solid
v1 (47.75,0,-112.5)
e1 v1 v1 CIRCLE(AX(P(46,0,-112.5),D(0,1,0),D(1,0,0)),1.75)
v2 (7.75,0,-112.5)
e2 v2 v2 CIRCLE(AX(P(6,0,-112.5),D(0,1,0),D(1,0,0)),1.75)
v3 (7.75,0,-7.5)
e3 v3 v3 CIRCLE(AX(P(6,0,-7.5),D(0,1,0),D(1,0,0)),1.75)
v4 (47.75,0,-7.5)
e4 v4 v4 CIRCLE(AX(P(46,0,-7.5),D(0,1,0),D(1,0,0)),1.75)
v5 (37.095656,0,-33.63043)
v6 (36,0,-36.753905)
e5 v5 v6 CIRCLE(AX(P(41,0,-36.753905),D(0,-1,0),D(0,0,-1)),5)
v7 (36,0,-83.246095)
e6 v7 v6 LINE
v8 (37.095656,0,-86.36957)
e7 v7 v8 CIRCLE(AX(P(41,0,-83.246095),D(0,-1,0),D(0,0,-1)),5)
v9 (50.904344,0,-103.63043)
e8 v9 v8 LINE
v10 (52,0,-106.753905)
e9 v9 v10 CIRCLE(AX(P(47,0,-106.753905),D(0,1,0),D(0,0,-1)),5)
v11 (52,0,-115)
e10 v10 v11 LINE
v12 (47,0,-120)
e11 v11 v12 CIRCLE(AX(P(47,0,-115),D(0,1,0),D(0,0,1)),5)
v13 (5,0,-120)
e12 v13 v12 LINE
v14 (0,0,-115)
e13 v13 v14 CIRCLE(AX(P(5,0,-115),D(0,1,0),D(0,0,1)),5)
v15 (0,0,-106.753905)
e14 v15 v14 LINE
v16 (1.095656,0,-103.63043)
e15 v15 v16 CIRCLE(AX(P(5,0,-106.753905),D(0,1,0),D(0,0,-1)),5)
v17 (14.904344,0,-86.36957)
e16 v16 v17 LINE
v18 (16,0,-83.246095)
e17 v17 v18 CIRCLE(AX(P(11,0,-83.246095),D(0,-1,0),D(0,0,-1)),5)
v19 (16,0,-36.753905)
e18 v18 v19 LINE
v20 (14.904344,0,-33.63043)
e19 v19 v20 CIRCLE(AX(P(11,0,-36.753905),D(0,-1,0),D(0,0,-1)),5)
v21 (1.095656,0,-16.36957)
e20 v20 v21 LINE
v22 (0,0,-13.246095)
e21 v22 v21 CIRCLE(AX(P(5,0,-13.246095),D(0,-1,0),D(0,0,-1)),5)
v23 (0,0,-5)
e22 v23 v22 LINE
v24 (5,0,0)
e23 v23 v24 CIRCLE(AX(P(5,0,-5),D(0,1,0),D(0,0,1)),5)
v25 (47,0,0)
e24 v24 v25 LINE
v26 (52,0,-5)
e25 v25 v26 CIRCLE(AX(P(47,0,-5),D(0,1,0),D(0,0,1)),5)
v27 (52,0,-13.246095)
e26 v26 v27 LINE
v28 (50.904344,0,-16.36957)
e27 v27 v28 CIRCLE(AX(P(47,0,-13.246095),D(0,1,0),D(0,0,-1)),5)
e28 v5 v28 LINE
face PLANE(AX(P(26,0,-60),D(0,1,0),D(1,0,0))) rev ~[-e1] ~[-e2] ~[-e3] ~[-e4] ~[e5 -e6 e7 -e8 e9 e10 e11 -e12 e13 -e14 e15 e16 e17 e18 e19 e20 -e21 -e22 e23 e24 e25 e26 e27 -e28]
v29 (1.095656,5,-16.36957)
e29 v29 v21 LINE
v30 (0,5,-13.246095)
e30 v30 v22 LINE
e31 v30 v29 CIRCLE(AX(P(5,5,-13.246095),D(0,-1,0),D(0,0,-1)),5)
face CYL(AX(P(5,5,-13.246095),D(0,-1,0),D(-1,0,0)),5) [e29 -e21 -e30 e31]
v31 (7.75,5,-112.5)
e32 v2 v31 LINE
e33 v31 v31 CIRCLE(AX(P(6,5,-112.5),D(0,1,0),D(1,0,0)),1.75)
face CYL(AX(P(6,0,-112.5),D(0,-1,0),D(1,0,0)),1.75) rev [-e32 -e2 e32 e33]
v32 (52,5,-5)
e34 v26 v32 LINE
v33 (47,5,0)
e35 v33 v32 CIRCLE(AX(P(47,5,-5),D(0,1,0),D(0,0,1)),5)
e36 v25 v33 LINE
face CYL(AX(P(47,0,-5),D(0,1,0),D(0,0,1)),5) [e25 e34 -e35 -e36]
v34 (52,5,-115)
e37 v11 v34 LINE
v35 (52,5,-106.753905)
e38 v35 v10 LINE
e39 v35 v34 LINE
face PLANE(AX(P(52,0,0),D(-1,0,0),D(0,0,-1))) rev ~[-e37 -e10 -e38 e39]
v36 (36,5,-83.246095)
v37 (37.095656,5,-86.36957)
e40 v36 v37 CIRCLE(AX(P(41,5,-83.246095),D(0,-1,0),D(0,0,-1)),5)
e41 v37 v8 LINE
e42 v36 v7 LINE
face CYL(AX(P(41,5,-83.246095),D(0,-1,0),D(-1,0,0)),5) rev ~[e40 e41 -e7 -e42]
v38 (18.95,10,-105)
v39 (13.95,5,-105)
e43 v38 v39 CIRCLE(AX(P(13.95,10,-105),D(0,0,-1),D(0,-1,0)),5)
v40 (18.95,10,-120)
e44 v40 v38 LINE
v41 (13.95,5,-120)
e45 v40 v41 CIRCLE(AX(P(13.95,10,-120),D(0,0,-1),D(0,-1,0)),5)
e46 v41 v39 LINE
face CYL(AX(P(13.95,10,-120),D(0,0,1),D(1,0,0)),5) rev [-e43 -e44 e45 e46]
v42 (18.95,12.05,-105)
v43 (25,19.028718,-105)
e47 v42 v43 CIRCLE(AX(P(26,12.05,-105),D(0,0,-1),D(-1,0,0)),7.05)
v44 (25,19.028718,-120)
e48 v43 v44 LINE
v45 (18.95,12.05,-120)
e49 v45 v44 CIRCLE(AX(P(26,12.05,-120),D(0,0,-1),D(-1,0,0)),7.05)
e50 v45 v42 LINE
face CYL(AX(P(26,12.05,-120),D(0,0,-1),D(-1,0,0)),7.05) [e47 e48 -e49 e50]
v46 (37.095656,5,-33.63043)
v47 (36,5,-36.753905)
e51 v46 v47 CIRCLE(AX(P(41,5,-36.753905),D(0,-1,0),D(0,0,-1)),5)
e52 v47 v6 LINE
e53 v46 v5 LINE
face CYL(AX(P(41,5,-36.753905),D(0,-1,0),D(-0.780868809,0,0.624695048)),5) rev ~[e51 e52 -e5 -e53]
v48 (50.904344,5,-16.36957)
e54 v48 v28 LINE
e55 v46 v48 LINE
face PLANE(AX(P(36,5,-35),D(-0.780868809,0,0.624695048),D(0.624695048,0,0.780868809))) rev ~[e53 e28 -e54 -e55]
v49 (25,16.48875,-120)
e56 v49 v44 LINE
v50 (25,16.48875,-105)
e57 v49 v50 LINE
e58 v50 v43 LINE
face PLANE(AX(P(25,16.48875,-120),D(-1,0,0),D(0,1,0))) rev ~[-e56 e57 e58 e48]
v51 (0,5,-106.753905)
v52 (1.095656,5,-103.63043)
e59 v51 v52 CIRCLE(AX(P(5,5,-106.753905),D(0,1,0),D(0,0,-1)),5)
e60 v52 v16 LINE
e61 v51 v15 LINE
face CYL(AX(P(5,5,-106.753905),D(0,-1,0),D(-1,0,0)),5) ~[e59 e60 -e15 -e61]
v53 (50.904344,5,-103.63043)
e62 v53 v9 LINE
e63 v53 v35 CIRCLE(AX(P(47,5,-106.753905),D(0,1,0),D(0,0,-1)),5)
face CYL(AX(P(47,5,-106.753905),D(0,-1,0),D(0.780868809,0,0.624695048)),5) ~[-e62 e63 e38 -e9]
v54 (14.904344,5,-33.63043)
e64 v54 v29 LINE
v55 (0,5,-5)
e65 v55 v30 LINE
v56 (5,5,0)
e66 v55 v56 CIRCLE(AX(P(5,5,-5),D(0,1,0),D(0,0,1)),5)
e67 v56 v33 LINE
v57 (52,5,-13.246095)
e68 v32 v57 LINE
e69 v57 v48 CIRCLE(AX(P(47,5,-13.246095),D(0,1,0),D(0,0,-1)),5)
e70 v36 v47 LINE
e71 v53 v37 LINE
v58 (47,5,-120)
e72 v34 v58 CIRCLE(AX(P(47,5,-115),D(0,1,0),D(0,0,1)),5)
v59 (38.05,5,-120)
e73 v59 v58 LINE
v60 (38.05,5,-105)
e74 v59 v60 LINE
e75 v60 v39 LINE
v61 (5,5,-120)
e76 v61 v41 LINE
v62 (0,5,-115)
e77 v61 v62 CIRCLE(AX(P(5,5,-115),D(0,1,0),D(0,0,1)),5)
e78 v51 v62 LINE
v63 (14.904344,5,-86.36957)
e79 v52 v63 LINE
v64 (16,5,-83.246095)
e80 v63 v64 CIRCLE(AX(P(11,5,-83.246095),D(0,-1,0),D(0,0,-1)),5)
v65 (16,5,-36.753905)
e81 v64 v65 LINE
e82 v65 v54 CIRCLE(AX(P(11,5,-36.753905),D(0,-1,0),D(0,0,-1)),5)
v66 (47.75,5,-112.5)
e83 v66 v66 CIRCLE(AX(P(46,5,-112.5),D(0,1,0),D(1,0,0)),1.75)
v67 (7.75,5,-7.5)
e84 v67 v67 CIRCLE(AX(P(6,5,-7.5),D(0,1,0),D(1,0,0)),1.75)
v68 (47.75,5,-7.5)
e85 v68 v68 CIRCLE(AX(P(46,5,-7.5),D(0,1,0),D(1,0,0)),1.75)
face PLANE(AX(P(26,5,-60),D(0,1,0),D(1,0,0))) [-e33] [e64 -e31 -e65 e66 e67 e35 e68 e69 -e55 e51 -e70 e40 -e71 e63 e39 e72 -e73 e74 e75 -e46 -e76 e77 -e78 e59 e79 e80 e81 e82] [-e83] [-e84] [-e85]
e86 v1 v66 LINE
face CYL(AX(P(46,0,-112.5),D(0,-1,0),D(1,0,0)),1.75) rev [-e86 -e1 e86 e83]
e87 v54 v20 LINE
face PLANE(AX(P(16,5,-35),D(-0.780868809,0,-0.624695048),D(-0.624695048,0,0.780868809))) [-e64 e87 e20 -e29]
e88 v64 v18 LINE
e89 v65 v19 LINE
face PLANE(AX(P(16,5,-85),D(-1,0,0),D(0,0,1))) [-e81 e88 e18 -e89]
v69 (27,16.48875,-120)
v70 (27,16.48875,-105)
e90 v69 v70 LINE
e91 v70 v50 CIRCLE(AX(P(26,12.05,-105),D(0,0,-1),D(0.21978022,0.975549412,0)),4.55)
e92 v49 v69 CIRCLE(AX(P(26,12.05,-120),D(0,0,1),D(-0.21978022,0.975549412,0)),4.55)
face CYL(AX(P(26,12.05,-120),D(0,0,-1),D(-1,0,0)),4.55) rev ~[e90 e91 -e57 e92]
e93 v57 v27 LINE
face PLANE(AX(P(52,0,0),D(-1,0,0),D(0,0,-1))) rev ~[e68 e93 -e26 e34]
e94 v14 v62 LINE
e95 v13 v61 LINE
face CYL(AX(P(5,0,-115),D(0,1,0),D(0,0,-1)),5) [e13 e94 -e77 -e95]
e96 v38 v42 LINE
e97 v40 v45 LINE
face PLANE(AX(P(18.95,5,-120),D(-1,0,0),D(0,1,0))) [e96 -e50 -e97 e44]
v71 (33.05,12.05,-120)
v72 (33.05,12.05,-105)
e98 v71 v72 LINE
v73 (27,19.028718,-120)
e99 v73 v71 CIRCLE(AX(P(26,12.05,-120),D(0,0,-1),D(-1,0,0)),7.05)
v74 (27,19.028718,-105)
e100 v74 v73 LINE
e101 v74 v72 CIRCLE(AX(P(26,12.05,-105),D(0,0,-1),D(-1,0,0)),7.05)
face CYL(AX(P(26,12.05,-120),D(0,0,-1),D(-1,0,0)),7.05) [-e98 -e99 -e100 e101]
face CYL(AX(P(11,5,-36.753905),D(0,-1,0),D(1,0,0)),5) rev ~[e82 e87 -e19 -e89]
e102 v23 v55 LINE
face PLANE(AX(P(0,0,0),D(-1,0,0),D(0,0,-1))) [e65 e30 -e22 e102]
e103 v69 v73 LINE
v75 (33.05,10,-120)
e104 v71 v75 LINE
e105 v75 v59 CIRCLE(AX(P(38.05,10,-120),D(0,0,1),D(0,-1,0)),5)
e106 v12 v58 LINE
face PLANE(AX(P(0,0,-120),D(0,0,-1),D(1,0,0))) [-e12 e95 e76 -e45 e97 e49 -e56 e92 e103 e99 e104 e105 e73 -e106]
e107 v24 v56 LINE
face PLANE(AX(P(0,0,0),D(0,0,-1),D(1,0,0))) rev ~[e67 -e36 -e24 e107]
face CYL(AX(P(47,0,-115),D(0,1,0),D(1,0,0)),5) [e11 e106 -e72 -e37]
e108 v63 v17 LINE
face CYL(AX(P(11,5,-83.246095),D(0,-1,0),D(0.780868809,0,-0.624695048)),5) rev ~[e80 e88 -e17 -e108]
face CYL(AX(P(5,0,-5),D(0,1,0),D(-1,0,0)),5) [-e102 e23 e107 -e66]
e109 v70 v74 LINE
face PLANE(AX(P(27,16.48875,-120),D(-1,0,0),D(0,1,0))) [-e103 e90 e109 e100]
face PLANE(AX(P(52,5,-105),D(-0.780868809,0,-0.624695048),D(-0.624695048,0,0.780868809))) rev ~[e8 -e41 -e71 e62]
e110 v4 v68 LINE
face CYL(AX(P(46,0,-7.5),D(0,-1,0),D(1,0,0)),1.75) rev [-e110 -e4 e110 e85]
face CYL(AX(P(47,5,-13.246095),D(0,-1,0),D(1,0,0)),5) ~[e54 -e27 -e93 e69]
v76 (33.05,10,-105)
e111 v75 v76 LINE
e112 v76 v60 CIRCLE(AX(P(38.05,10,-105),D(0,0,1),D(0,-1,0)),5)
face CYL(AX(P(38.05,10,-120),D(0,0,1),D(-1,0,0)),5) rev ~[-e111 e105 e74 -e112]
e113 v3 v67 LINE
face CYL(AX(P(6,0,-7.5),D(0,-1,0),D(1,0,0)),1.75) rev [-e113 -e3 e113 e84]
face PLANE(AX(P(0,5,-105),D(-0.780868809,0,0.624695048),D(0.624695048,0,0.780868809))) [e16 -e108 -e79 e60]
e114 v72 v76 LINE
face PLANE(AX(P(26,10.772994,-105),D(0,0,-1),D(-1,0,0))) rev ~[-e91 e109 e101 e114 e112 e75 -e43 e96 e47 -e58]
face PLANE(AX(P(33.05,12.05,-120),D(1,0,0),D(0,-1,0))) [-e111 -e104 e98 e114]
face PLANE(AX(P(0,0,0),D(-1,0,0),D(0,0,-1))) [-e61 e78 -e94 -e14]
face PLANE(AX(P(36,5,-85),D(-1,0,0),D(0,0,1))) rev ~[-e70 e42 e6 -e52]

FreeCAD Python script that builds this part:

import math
import FreeCAD as App
import Part
import Sketcher
from FreeCAD import Vector
Q = App.Units.Quantity


def edges_at(feature, points):
    """Names of the edges that pass closest to the given points."""
    edges = feature.Shape.Edges
    near = lambda p: min(range(len(edges)), key=lambda i: edges[i].distToShape(Part.Vertex(*p))[0])
    return sorted({f"Edge{near(p) + 1}" for p in points})


def add_polygon(sketch, points):
    """Adds a closed chain of lines whose ends are joined by coincident constraints."""
    first, n = sketch.GeometryCount, len(points)
    for a, b in zip(points, points[1:] + points[:1]):
        sketch.addGeometry(Part.LineSegment(App.Vector(*a, 0), App.Vector(*b, 0)), False)
    for i in range(n):
        sketch.addConstraint(Sketcher.Constraint("Coincident", first + i, 2, first + (i + 1) % n, 1))

doc = App.newDocument("Part")
params = doc.addObject("Spreadsheet::Sheet", "Params")
for row, (alias, value) in enumerate([
    ("sketch1_diameter", "3.5 mm"),
    ("sketch1_width", "52 mm"),
    ("sketch1_height", "120 mm"),
    ("pad1_length", "5 mm"),
    ("sketch2_height", "90 mm"),
    ("sketch2_height2", "50 mm"),
    ("sketch3_diameter", "9.1 mm"),
    ("sketch3_radius", "7.05 mm"),
    ("sketch3_height", "7.05 mm"),
    ("pad2_length", "15 mm"),
    ("sketch4_width", "2 mm"),
    ("fillet_radius", "5 mm"),
], start=1):
    params.set(f"A{row}", alias)
    params.set(f"B{row}", "=" + value)
    params.setAlias(f"B{row}", alias)

body = doc.addObject("PartDesign::Body", "Body")

# Sketch on XZ plane
sketch1 = body.newObject("Sketcher::SketchObject", "Sketch")
sketch1.AttachmentSupport = (doc.getObject("XZ_Plane"), [""])
sketch1.MapMode = "FlatFace"
add_polygon(sketch1, [(0, -120), (0, 0), (52, 0), (52, -120)])  # lines 0-3
sketch1.addGeometry(Part.Circle(Vector(6, -7.5, 0), Vector(0, 0, 1), 1.8), False)  # 4
sketch1.addGeometry(Part.Circle(Vector(46, -7.5, 0), Vector(0, 0, 1), 1.8), False)  # 5
sketch1.addGeometry(Part.Circle(Vector(6, -112.5, 0), Vector(0, 0, 1), 1.8), False)  # 6
sketch1.addGeometry(Part.Circle(Vector(46, -112.5, 0), Vector(0, 0, 1), 1.8), False)  # 7
sketch1.addConstraint(Sketcher.Constraint("Vertical", 0))
sketch1.addConstraint(Sketcher.Constraint("Horizontal", 1))
sketch1.addConstraint(Sketcher.Constraint("Vertical", 2))
sketch1.addConstraint(Sketcher.Constraint("Horizontal", 3))
sketch1.addConstraint(Sketcher.Constraint("Coincident", 0, 2, -1, 1))
sketch1.addConstraint(Sketcher.Constraint("Equal", 4, 5))
sketch1.addConstraint(Sketcher.Constraint("Equal", 5, 6))
sketch1.addConstraint(Sketcher.Constraint("Equal", 6, 7))
sketch1.addConstraint(Sketcher.Constraint("Horizontal", 4, 3, 5, 3))
sketch1.addConstraint(Sketcher.Constraint("Horizontal", 6, 3, 7, 3))
sketch1.addConstraint(Sketcher.Constraint("Vertical", 4, 3, 6, 3))
sketch1.addConstraint(Sketcher.Constraint("Vertical", 5, 3, 7, 3))
sketch1.addConstraint(Sketcher.Constraint("Diameter", 4, Q("3.5 mm")))
sketch1.addConstraint(Sketcher.Constraint("DistanceX", 1, 1, 1, 2, Q("52 mm")))
sketch1.addConstraint(Sketcher.Constraint("DistanceY", 0, 1, 0, 2, Q("120 mm")))
sketch1.addConstraint(Sketcher.Constraint("DistanceX", -1, 1, 4, 3, Q("6 mm")))
sketch1.addConstraint(Sketcher.Constraint("DistanceX", -1, 1, 5, 3, Q("46 mm")))
sketch1.addConstraint(Sketcher.Constraint("DistanceY", 6, 3, 4, 3, Q("105 mm")))
sketch1.addConstraint(Sketcher.Constraint("DistanceY", 4, 3, -1, 1, Q("7.5 mm")))
sketch1.setExpression("Constraints[16]", "Params.sketch1_diameter")
sketch1.setExpression("Constraints[17]", "Params.sketch1_width")
sketch1.setExpression("Constraints[18]", "Params.sketch1_height")
pad1 = body.newObject("PartDesign::Pad", "Pad")
pad1.Profile = sketch1
pad1.setExpression("Length", "Params.pad1_length")
pad1.Reversed = True

# Sketch on XZ plane
sketch2 = body.newObject("Sketcher::SketchObject", "Sketch001")
sketch2.AttachmentSupport = (doc.getObject("XZ_Plane"), [""])
sketch2.MapMode = "FlatFace"
sketch2.AttachmentOffset = App.Placement(Vector(0, 0, -5), App.Rotation())
add_polygon(sketch2, [(16, -85), (0, -105), (0, -15), (16, -35)])  # lines 0-3
add_polygon(sketch2, [(52, -105), (36, -85), (36, -35), (52, -15)])  # lines 4-7
sketch2.addConstraint(Sketcher.Constraint("Vertical", 1))
sketch2.addConstraint(Sketcher.Constraint("Vertical", 3))
sketch2.addConstraint(Sketcher.Constraint("Vertical", 5))
sketch2.addConstraint(Sketcher.Constraint("Vertical", 7))
sketch2.addConstraint(Sketcher.Constraint("PointOnObject", 0, 2, -2))
sketch2.addConstraint(Sketcher.Constraint("Parallel", 2, 4))
sketch2.addConstraint(Sketcher.Constraint("Parallel", 0, 6))
sketch2.addConstraint(Sketcher.Constraint("Horizontal", 3, 2, 4, 2))
sketch2.addConstraint(Sketcher.Constraint("Horizontal", 2, 2, 5, 2))
sketch2.addConstraint(Sketcher.Constraint("Horizontal", 1, 2, 6, 2))
sketch2.addConstraint(Sketcher.Constraint("Horizontal", 0, 2, 7, 2))
sketch2.addConstraint(Sketcher.Constraint("DistanceY", 1, 1, 1, 2, Q("90 mm")))
sketch2.addConstraint(Sketcher.Constraint("DistanceY", 3, 2, 3, 1, Q("50 mm")))
sketch2.addConstraint(Sketcher.Constraint("DistanceY", 0, 2, -1, 1, Q("105 mm")))
sketch2.addConstraint(Sketcher.Constraint("DistanceX", -1, 1, 2, 2, Q("16 mm")))
sketch2.addConstraint(Sketcher.Constraint("DistanceX", -1, 1, 4, 2, Q("36 mm")))
sketch2.setExpression("Constraints[19]", "Params.sketch2_height")
sketch2.setExpression("Constraints[20]", "Params.sketch2_height2")
pocket1 = body.newObject("PartDesign::Pocket", "Pocket")
pocket1.Profile = sketch2
pocket1.Type = "ThroughAll"
pocket1.Reversed = True

# Sketch on XY plane
sketch3 = body.newObject("Sketcher::SketchObject", "Sketch002")
sketch3.AttachmentSupport = (doc.getObject("XY_Plane"), [""])
sketch3.MapMode = "FlatFace"
sketch3.AttachmentOffset = App.Placement(Vector(0, 0, -120), App.Rotation())
sketch3.addGeometry(Part.LineSegment(Vector(33, 12.1, 0), Vector(33, 5, 0)), False)
sketch3.addGeometry(Part.LineSegment(Vector(33, 5, 0), Vector(18.9, 5, 0)), False)
sketch3.addGeometry(Part.LineSegment(Vector(18.9, 5, 0), Vector(18.9, 12.1, 0)), False)
sketch3.addGeometry(Part.ArcOfCircle(Part.Circle(Vector(26, 12.1, 0), Vector(0, 0, 1), 7), math.radians(0), math.radians(180)), False)
sketch3.addGeometry(Part.Circle(Vector(26, 12.1, 0), Vector(0, 0, 1), 4.5), False)
sketch3.addConstraint(Sketcher.Constraint("Coincident", 0, 2, 1, 1))
sketch3.addConstraint(Sketcher.Constraint("Coincident", 1, 2, 2, 1))
sketch3.addConstraint(Sketcher.Constraint("Tangent", 2, 2, 3, 2))
sketch3.addConstraint(Sketcher.Constraint("Tangent", 3, 1, 0, 1))
sketch3.addConstraint(Sketcher.Constraint("Vertical", 0))
sketch3.addConstraint(Sketcher.Constraint("Horizontal", 1))
sketch3.addConstraint(Sketcher.Constraint("Vertical", 2))
sketch3.addConstraint(Sketcher.Constraint("Coincident", 4, 3, 3, 3))
sketch3.addConstraint(Sketcher.Constraint("Diameter", 4, Q("9.1 mm")))
sketch3.addConstraint(Sketcher.Constraint("Radius", 3, Q("7.05 mm")))
sketch3.addConstraint(Sketcher.Constraint("DistanceX", -1, 1, 3, 3, Q("26 mm")))
sketch3.addConstraint(Sketcher.Constraint("DistanceY", -1, 1, 0, 2, Q("5 mm")))
sketch3.addConstraint(Sketcher.Constraint("DistanceY", 0, 2, 0, 1, Q("7.05 mm")))
sketch3.setExpression("Constraints[8]", "Params.sketch3_diameter")
sketch3.setExpression("Constraints[9]", "Params.sketch3_radius")
sketch3.setExpression("Constraints[12]", "Params.sketch3_height")
pad2 = body.newObject("PartDesign::Pad", "Pad001")
pad2.Profile = sketch3
pad2.setExpression("Length", "Params.pad2_length")

# Sketch on XY plane
sketch4 = body.newObject("Sketcher::SketchObject", "Sketch003")
sketch4.AttachmentSupport = (doc.getObject("XY_Plane"), [""])
sketch4.MapMode = "FlatFace"
sketch4.AttachmentOffset = App.Placement(Vector(0, 0, -120), App.Rotation())
add_polygon(sketch4, [(27, 19.1), (27, 16.5), (25, 16.5), (25, 19.1)])  # lines 0-3
sketch4.addConstraint(Sketcher.Constraint("Vertical", 0))
sketch4.addConstraint(Sketcher.Constraint("Horizontal", 1))
sketch4.addConstraint(Sketcher.Constraint("Vertical", 2))
sketch4.addConstraint(Sketcher.Constraint("Horizontal", 3))
sketch4.addConstraint(Sketcher.Constraint("DistanceX", 1, 2, 1, 1, Q("2 mm")))
sketch4.addConstraint(Sketcher.Constraint("DistanceX", -1, 1, 0, 2, Q("27 mm")))
sketch4.addConstraint(Sketcher.Constraint("DistanceY", -1, 1, 2, 2, Q("19.1 mm")))
sketch4.addConstraint(Sketcher.Constraint("DistanceY", 0, 2, 0, 1, Q("2.61125 mm")))
sketch4.setExpression("Constraints[8]", "Params.sketch4_width")
pocket2 = body.newObject("PartDesign::Pocket", "Pocket001")
pocket2.Profile = sketch4
pocket2.Type = "ThroughAll"
pocket2.Reversed = True
doc.recompute()

fillet = body.newObject("PartDesign::Fillet", "Fillet")
fillet.Base = (pocket2, edges_at(pocket2, [
    (0, 2.5, -15),
    (0, 2.5, -105),
    (16, 2.5, -85),
    (16, 2.5, -35),
    (52, 2.5, -105),
    (52, 2.5, -15),
    (36, 2.5, -35),
    (36, 2.5, -85),
    (18.95, 5, -112.5),
    (33.05, 5, -112.5),
    (0, 2.5, -120),
    (52, 2.5, -120),
    (52, 2.5, 0),
    (0, 2.5, 0),
]))
fillet.setExpression("Radius", "Params.fillet_radius")

doc.recompute()
